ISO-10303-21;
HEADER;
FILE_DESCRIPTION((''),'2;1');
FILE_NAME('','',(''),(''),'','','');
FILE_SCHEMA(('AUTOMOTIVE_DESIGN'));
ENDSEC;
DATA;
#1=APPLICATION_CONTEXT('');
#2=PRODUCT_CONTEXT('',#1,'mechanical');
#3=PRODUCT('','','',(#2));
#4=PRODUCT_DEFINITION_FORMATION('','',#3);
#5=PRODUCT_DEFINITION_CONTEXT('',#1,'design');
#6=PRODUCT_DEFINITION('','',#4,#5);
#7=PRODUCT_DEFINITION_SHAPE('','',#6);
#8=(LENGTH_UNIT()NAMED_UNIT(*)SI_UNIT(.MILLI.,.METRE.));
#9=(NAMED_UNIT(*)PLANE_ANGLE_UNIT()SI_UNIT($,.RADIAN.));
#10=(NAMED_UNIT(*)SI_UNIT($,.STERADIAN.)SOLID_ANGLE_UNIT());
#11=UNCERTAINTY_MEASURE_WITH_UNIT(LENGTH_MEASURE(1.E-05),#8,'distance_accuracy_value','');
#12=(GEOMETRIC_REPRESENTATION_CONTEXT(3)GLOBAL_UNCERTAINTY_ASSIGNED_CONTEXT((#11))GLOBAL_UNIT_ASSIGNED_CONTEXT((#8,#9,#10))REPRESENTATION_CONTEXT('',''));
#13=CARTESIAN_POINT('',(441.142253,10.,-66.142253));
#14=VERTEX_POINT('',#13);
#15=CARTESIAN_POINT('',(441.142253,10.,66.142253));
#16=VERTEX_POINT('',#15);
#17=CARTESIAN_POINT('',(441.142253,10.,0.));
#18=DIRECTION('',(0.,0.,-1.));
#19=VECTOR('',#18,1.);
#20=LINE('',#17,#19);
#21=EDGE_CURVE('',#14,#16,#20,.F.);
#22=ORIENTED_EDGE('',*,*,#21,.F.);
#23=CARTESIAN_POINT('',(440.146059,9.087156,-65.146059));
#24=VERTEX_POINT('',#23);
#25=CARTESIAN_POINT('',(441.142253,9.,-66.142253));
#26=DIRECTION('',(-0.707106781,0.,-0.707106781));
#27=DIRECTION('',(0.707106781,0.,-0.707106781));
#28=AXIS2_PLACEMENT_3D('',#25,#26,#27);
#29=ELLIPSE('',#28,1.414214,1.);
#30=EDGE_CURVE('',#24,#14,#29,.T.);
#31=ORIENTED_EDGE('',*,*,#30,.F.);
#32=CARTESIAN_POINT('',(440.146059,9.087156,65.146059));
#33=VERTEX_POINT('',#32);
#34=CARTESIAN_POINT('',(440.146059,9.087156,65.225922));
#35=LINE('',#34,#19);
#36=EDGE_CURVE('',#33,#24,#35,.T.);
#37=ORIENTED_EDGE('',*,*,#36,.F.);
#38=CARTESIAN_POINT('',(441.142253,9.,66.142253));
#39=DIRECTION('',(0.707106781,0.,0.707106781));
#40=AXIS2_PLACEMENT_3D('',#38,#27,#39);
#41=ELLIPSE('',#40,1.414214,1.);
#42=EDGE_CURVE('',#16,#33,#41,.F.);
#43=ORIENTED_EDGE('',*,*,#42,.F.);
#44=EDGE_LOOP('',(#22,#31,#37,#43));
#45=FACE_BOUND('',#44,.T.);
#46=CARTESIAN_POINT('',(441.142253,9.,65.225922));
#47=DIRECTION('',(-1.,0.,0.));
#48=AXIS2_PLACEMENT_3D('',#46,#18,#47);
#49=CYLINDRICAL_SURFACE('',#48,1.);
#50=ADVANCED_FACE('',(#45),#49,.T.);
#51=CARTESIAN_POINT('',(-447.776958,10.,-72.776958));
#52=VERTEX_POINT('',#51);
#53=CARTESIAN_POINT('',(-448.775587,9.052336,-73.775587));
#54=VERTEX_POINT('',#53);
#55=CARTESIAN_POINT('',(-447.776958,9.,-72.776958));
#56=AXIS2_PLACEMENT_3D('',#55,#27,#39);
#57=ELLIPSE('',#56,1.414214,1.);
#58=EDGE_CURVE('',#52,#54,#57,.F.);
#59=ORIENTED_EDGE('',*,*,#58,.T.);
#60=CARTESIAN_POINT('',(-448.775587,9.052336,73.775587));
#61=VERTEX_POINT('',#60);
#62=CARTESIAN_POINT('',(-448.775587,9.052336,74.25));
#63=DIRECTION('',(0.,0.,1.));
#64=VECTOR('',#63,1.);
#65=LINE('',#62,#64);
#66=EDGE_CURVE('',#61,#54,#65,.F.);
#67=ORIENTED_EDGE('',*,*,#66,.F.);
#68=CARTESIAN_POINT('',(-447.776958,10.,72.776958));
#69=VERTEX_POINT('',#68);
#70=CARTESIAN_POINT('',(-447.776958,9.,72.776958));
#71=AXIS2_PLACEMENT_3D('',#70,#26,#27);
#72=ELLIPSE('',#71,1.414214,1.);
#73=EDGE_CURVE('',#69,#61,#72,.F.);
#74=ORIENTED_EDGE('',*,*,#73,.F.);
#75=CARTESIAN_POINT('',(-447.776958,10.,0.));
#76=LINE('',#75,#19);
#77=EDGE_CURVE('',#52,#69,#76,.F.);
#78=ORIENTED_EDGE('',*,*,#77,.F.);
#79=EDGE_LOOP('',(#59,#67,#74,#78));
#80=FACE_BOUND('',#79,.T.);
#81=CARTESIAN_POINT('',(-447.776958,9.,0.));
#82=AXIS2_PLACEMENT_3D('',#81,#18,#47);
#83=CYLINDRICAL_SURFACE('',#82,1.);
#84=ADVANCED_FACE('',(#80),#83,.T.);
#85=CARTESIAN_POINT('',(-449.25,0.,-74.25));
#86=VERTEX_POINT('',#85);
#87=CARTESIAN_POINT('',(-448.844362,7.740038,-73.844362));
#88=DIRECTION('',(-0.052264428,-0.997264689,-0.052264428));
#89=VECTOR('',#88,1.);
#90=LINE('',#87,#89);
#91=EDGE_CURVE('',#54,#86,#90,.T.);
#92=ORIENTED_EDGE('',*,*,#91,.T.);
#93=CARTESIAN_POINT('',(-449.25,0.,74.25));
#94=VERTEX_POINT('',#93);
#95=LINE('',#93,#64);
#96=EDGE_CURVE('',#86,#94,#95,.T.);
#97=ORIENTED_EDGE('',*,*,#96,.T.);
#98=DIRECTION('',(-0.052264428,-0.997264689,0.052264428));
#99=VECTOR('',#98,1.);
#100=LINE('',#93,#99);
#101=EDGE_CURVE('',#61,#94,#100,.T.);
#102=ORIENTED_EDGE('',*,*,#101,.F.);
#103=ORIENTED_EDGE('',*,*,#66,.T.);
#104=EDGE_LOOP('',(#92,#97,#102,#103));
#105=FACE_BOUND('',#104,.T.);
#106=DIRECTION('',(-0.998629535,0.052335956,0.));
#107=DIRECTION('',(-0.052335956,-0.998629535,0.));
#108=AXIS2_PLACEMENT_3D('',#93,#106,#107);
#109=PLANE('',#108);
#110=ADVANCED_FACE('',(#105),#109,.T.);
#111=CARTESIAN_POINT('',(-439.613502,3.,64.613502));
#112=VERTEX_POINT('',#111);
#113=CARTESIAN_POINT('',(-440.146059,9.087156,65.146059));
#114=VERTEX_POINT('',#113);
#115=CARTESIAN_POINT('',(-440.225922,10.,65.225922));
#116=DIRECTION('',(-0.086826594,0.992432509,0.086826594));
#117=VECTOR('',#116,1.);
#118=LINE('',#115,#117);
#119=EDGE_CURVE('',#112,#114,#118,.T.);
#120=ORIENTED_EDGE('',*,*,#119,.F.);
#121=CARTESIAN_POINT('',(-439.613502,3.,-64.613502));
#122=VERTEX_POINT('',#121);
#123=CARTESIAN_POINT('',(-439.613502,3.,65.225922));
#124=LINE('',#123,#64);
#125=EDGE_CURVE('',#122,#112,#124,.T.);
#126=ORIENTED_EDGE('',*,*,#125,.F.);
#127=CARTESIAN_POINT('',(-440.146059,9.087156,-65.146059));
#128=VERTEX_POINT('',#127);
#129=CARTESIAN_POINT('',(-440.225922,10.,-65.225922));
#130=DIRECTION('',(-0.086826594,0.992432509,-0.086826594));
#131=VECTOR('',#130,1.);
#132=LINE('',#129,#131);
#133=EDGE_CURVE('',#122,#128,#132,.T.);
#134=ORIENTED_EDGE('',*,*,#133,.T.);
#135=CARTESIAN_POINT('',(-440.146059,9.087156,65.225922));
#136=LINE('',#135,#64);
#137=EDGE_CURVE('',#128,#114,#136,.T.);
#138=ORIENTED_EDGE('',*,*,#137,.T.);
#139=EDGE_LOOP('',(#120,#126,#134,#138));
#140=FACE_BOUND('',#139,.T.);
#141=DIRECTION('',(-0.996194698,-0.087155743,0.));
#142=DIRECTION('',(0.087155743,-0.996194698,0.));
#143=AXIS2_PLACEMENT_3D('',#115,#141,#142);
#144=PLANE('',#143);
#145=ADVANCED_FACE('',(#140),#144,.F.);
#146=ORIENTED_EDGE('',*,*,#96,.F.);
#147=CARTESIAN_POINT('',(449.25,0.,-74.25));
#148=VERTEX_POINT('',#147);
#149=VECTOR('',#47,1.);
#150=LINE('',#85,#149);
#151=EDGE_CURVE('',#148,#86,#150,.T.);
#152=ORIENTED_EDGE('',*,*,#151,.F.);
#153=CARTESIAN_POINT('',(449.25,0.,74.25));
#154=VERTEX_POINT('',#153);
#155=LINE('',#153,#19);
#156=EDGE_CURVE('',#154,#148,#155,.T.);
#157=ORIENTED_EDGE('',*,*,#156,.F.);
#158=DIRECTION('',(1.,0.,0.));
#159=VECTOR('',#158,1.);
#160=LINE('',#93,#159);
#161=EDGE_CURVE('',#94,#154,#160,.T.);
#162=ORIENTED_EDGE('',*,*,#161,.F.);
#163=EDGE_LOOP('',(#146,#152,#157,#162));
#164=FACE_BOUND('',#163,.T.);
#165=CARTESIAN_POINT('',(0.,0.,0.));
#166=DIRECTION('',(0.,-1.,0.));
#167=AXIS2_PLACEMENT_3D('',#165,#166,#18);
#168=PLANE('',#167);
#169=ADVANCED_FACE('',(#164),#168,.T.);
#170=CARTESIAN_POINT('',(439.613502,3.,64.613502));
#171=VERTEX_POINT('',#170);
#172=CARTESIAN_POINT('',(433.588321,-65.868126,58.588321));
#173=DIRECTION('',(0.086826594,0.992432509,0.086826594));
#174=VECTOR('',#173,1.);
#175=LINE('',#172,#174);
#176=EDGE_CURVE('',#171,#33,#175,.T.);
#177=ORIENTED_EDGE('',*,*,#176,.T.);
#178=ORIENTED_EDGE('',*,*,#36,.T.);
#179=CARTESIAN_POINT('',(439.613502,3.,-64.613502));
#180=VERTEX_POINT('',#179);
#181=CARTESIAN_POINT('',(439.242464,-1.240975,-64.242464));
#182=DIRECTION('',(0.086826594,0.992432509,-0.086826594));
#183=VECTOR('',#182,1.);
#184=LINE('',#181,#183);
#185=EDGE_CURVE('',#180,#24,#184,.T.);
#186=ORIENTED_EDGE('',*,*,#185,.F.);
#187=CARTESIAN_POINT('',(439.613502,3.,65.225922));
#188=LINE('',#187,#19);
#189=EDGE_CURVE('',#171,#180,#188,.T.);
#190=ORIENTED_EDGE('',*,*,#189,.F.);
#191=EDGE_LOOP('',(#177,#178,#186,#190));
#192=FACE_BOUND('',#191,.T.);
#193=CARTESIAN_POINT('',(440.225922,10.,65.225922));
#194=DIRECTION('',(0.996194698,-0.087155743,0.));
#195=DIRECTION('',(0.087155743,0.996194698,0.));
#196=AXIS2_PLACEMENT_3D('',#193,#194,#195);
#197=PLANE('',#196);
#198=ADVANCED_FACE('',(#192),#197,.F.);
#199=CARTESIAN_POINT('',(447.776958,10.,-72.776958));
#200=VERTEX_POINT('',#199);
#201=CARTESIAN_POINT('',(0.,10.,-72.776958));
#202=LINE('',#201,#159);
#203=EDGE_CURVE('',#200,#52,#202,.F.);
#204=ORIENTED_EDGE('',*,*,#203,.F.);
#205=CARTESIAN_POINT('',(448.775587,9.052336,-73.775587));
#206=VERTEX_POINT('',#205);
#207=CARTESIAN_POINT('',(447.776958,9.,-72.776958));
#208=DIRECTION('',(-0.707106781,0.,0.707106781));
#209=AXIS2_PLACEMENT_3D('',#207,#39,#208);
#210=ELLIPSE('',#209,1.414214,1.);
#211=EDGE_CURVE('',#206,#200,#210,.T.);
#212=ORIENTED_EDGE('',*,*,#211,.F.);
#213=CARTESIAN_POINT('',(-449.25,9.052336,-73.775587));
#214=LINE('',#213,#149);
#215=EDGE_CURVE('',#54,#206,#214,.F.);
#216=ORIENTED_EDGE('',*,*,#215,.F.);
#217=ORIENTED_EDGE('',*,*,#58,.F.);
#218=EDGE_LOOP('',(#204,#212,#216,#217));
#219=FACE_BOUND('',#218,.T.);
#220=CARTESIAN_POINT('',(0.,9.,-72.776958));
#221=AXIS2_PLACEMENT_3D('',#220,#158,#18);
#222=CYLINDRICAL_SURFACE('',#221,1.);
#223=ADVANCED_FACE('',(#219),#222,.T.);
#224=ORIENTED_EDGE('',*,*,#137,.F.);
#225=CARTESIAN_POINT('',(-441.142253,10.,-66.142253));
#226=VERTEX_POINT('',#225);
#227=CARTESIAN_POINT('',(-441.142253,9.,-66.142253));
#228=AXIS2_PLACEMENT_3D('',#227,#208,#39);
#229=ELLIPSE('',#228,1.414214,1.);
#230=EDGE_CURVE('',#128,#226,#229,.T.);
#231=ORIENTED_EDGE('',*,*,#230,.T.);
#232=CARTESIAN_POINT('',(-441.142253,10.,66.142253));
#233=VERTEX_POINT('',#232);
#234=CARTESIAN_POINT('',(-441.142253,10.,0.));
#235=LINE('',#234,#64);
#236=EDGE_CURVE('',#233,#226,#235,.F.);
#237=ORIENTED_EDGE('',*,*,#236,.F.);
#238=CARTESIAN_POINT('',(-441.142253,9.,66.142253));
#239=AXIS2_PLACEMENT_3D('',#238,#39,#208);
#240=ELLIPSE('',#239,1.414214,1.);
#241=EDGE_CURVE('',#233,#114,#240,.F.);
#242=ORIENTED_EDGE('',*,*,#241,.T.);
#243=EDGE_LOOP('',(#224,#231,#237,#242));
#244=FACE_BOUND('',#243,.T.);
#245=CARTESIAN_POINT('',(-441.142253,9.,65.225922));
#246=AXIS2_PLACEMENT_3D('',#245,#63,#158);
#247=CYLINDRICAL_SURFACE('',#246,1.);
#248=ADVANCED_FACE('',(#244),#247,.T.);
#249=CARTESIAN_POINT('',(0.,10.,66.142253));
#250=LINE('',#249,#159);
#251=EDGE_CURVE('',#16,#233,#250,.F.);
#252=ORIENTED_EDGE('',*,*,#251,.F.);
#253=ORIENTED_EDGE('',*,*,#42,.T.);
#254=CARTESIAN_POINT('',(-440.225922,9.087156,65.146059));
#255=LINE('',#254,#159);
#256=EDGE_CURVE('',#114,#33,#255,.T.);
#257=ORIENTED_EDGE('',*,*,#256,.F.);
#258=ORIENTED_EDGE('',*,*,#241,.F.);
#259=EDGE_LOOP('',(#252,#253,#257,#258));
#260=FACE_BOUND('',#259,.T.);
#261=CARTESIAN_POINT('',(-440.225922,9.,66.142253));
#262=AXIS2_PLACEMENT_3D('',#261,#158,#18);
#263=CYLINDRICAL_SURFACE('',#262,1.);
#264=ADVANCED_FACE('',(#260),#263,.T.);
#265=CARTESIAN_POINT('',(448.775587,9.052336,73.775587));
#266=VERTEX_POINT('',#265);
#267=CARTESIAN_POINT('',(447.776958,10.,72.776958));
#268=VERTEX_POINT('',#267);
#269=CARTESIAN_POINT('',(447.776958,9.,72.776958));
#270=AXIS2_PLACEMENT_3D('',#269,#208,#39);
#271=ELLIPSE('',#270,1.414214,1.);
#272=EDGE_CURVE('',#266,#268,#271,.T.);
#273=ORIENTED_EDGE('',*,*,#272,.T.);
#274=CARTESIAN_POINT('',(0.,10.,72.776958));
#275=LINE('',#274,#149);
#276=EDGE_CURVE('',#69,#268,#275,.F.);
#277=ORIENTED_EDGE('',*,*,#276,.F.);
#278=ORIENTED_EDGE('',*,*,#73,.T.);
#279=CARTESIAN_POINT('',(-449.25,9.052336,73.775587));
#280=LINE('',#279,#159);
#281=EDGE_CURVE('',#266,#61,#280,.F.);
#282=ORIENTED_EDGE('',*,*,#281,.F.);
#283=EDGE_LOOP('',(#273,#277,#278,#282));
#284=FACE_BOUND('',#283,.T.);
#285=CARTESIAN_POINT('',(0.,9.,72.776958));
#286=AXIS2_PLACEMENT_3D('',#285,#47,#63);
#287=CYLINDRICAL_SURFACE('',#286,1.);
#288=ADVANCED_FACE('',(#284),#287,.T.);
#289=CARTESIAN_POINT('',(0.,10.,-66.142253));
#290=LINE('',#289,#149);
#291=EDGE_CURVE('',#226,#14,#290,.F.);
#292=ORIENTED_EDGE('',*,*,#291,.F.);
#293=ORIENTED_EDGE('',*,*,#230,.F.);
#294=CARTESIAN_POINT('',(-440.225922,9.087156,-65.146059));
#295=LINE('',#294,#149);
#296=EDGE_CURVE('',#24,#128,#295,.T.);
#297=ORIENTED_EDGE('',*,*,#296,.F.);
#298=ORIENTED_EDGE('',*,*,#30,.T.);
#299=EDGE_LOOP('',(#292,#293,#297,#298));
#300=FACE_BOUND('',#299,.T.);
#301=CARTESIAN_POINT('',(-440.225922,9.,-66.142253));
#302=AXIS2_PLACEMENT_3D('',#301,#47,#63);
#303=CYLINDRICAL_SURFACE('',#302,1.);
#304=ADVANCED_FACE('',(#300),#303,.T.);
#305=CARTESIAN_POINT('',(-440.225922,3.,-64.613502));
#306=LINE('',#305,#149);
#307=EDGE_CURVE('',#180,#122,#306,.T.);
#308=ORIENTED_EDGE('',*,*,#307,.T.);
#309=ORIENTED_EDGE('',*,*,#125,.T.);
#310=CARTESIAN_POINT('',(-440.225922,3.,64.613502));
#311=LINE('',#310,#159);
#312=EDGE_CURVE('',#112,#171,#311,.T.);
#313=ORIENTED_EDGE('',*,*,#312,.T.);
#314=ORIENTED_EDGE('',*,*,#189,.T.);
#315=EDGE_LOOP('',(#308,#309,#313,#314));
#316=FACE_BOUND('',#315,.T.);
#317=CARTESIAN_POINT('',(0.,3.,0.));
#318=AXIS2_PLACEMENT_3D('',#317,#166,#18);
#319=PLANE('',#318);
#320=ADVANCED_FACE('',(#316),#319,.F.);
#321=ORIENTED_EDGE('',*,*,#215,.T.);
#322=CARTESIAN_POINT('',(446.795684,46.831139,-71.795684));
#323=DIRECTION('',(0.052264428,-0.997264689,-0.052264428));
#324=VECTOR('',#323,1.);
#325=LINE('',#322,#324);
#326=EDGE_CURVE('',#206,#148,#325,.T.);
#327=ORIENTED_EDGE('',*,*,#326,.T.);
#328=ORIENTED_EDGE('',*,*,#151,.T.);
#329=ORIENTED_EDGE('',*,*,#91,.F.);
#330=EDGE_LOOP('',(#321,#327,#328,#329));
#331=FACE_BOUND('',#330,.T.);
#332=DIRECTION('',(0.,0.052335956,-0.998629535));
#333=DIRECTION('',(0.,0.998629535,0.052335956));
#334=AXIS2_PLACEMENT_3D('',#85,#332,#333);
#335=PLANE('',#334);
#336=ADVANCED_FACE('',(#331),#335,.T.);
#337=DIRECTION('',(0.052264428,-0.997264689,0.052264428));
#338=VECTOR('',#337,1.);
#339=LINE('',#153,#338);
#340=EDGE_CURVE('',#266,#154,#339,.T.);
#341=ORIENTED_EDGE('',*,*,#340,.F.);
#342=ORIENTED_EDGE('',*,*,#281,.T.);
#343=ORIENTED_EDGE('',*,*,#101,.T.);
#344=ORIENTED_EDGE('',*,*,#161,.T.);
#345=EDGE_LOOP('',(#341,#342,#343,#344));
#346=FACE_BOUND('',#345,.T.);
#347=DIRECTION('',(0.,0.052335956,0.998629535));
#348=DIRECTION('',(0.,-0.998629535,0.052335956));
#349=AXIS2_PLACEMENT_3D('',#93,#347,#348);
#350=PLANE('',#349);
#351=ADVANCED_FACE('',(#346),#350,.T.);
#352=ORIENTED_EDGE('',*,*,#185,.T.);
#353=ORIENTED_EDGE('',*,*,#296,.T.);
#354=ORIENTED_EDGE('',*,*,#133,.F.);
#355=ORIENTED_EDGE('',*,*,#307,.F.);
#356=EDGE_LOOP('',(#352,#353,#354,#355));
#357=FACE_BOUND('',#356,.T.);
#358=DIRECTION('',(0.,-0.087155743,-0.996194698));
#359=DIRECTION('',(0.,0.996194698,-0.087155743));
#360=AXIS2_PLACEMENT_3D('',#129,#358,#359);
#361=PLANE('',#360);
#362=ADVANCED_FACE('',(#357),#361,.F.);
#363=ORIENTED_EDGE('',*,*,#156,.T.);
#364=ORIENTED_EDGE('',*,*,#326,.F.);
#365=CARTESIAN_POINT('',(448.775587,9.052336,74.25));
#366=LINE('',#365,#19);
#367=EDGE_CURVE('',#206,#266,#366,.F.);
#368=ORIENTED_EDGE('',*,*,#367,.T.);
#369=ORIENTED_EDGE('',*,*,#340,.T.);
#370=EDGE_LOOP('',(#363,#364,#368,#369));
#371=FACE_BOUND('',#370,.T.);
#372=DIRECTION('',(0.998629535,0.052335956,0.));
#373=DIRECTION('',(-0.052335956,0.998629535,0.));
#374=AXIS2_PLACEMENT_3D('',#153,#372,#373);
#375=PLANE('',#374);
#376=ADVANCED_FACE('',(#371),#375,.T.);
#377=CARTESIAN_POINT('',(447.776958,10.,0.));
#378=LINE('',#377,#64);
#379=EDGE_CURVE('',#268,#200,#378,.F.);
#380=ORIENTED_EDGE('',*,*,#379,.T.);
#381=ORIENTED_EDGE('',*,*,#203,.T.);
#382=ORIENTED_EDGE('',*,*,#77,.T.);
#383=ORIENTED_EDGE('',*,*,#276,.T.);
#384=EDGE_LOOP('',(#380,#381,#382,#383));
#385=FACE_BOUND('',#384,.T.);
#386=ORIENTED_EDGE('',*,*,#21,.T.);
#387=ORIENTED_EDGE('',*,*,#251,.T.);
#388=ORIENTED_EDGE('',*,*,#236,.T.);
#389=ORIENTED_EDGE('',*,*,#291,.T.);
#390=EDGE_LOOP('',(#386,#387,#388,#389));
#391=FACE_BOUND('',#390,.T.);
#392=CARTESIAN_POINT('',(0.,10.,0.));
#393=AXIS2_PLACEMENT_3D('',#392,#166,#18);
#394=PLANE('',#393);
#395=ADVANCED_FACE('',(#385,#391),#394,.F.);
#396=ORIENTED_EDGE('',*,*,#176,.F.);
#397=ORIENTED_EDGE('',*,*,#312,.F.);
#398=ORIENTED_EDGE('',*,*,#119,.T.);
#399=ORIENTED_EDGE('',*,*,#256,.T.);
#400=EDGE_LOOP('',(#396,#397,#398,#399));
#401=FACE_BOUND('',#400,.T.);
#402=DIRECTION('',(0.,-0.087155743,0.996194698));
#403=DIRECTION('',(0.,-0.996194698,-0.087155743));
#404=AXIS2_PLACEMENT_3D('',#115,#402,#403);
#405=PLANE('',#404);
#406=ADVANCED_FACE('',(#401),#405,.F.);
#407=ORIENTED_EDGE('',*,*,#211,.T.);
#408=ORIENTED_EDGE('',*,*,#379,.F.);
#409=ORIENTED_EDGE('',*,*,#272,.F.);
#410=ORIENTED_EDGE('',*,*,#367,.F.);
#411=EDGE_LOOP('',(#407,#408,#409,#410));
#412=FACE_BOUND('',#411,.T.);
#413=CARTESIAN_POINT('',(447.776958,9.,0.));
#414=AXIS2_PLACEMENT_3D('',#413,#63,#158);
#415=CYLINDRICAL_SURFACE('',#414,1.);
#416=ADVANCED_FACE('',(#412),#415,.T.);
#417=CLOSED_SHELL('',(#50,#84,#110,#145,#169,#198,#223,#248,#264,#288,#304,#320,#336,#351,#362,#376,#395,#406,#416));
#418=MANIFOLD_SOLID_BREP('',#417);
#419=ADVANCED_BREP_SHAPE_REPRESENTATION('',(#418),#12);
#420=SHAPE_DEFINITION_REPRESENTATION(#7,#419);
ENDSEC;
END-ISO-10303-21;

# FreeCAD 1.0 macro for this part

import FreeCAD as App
import Part
import Sketcher
Q = App.Units.Quantity


def edges_at(feature, points):
    """Names of the edges that pass closest to the given points."""
    edges = feature.Shape.Edges
    near = lambda p: min(range(len(edges)), key=lambda i: edges[i].distToShape(Part.Vertex(*p))[0])
    return sorted({f"Edge{near(p) + 1}" for p in points})

doc = App.newDocument("Part")
body = doc.addObject("PartDesign::Body", "Body")

sketch1 = body.newObject("Sketcher::SketchObject", "Sketch")
sketch1.AttachmentSupport = (doc.getObject("XZ_Plane"), [""])
sketch1.MapMode = "FlatFace"
sketch1.addGeometry([
    Part.LineSegment(App.Vector(-449.25, -74.25, 0), App.Vector(-449.25, 74.25, 0)),
    Part.LineSegment(App.Vector(-449.25, 74.25, 0), App.Vector(449.25, 74.25, 0)),
    Part.LineSegment(App.Vector(449.25, 74.25, 0), App.Vector(449.25, -74.25, 0)),
    Part.LineSegment(App.Vector(449.25, -74.25, 0), App.Vector(-449.25, -74.25, 0)),
], False)
sketch1.addConstraint([
    Sketcher.Constraint("Coincident", 0, 2, 1, 1),
    Sketcher.Constraint("Coincident", 1, 2, 2, 1),
    Sketcher.Constraint("Coincident", 2, 2, 3, 1),
    Sketcher.Constraint("Coincident", 3, 2, 0, 1),
    Sketcher.Constraint("Vertical", 0),
    Sketcher.Constraint("Horizontal", 1),
    Sketcher.Constraint("Vertical", 2),
    Sketcher.Constraint("Horizontal", 3),
    Sketcher.Constraint("Symmetric", 0, 2, 2, 2, -1, 1),
    Sketcher.Constraint("DistanceX", 1, 1, 1, 2, Q("898.5 mm")),
    Sketcher.Constraint("DistanceY", 0, 1, 0, 2, Q("148.5 mm")),
])
pad1 = body.newObject("PartDesign::Pad", "Pad")
pad1.Profile = sketch1
pad1.Length = 10
pad1.Reversed = True
pad1.TaperAngle = -3

sketch2 = body.newObject("Sketcher::SketchObject", "Sketch001")
sketch2.AttachmentSupport = (doc.getObject("XZ_Plane"), [""])
sketch2.MapMode = "FlatFace"
sketch2.AttachmentOffset = App.Placement(App.Vector(0, 0, -10), App.Rotation())
sketch2.addGeometry([
    Part.LineSegment(App.Vector(-440.225922, -65.225922, 0), App.Vector(-440.225922, 65.225922, 0)),
    Part.LineSegment(App.Vector(-440.225922, 65.225922, 0), App.Vector(440.225922, 65.225922, 0)),
    Part.LineSegment(App.Vector(440.225922, 65.225922, 0), App.Vector(440.225922, -65.225922, 0)),
    Part.LineSegment(App.Vector(440.225922, -65.225922, 0), App.Vector(-440.225922, -65.225922, 0)),
], False)
sketch2.addConstraint([
    Sketcher.Constraint("Coincident", 0, 2, 1, 1),
    Sketcher.Constraint("Coincident", 1, 2, 2, 1),
    Sketcher.Constraint("Coincident", 2, 2, 3, 1),
    Sketcher.Constraint("Coincident", 3, 2, 0, 1),
    Sketcher.Constraint("Vertical", 0),
    Sketcher.Constraint("Horizontal", 1),
    Sketcher.Constraint("Vertical", 2),
    Sketcher.Constraint("Horizontal", 3),
    Sketcher.Constraint("Symmetric", 0, 2, 2, 2, -1, 1),
    Sketcher.Constraint("DistanceX", 1, 1, 1, 2, Q("880.451844 mm")),
    Sketcher.Constraint("DistanceY", 0, 1, 0, 2, Q("130.451844 mm")),
])
pocket1 = body.newObject("PartDesign::Pocket", "Pocket")
pocket1.Profile = sketch2
pocket1.Length = 7
pocket1.Reversed = True
pocket1.TaperAngle = -5
doc.recompute()

fillet = body.newObject("PartDesign::Fillet", "Fillet")
fillet.Base = (pocket1, edges_at(pocket1, [
    (-448.726, 10, 0),
    (0, 10, 73.726),
    (440.226, 10, 0),
    (0, 10, -65.226),
    (-440.226, 10, 0),
    (0, 10, 65.226),
    (448.726, 10, 0),
    (0, 10, -73.726),
]))
fillet.Radius = 1

doc.recompute()
